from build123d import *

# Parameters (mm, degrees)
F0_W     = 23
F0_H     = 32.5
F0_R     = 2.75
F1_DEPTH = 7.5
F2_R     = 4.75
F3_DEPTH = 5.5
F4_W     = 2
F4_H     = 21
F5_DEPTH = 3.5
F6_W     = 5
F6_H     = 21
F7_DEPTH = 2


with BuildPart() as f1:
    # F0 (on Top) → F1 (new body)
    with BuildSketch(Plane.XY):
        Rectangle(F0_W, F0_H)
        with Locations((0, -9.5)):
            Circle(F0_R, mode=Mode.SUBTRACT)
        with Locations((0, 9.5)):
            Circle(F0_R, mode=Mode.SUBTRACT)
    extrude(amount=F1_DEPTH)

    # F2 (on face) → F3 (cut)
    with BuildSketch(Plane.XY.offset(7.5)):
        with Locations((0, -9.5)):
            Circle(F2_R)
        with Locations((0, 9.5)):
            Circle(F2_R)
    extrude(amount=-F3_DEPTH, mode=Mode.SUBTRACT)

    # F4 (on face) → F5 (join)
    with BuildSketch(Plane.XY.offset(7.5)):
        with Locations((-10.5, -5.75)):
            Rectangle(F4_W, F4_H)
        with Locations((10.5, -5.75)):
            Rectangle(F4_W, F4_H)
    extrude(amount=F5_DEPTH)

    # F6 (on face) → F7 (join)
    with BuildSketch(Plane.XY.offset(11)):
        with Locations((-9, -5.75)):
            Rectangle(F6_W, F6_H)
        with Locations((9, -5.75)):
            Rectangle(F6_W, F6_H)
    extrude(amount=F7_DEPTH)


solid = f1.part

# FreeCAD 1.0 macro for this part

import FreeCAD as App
import Part
import Sketcher

V = App.Vector
Q = App.Units.Quantity


def add_polygon(sketch, points):
    """Adds a closed chain of lines whose ends are joined by coincident constraints."""
    first, n = sketch.GeometryCount, len(points)
    for a, b in zip(points, points[1:] + points[:1]):
        sketch.addGeometry(Part.LineSegment(App.Vector(*a, 0), App.Vector(*b, 0)), False)
    for i in range(n):
        sketch.addConstraint(Sketcher.Constraint("Coincident", first + i, 2, first + (i + 1) % n, 1))

doc = App.newDocument("Part")
body = doc.addObject("PartDesign::Body", "Body")

sketch1 = doc.addObject("Sketcher::SketchObject", "Sketch")
body.addObject(sketch1)
sketch1.AttachmentSupport = (doc.XY_Plane, [""])
sketch1.MapMode = "FlatFace"
add_polygon(sketch1, [(-11.5, 16.2), (-11.5, -16.2), (11.5, -16.2), (11.5, 16.2)])
sketch1.addGeometry(Part.Circle(V(0, -9.5, 0), V(0, 0, 1), 2.8), False)
sketch1.addGeometry(Part.Circle(V(0, 9.5, 0), V(0, 0, 1), 2.8), False)
sketch1.addConstraint(Sketcher.Constraint("Vertical", 0))
sketch1.addConstraint(Sketcher.Constraint("Horizontal", 1))
sketch1.addConstraint(Sketcher.Constraint("Vertical", 2))
sketch1.addConstraint(Sketcher.Constraint("Horizontal", 3))
sketch1.addConstraint(Sketcher.Constraint("Equal", 4, 5))
sketch1.addConstraint(Sketcher.Constraint("Symmetric", 4, 3, 5, 3, -1, 1))
sketch1.addConstraint(Sketcher.Constraint("Symmetric", 0, 2, 2, 2, -1, 1))
sketch1.addConstraint(Sketcher.Constraint("PointOnObject", 4, 3, -2))
sketch1.addConstraint(Sketcher.Constraint("Diameter", 4, Q("5.5 mm")))
sketch1.addConstraint(Sketcher.Constraint("DistanceX", 1, 1, 1, 2, Q("23 mm")))
sketch1.addConstraint(Sketcher.Constraint("DistanceY", 0, 2, 0, 1, Q("32.5 mm")))
sketch1.addConstraint(Sketcher.Constraint("DistanceY", 4, 3, 5, 3, Q("19 mm")))
pad1 = doc.addObject("PartDesign::Pad", "Pad")
body.addObject(pad1)
pad1.Profile = sketch1
pad1.Length = 7.5

sketch2 = doc.addObject("Sketcher::SketchObject", "Sketch001")
body.addObject(sketch2)
sketch2.AttachmentSupport = (doc.XY_Plane, [""])
sketch2.MapMode = "FlatFace"
sketch2.AttachmentOffset = App.Placement(V(0, 0, 7.5), App.Rotation())
sketch2.addGeometry(Part.Circle(V(0, -9.5, 0), V(0, 0, 1), 4.8), False)
sketch2.addGeometry(Part.Circle(V(0, 9.5, 0), V(0, 0, 1), 4.8), False)
sketch2.addConstraint(Sketcher.Constraint("Equal", 0, 1))
sketch2.addConstraint(Sketcher.Constraint("Symmetric", 0, 3, 1, 3, -1, 1))
sketch2.addConstraint(Sketcher.Constraint("PointOnObject", 0, 3, -2))
sketch2.addConstraint(Sketcher.Constraint("Diameter", 0, Q("9.5 mm")))
sketch2.addConstraint(Sketcher.Constraint("DistanceY", 0, 3, 1, 3, Q("19 mm")))
pocket1 = doc.addObject("PartDesign::Pocket", "Pocket")
body.addObject(pocket1)
pocket1.Profile = sketch2
pocket1.Length = 5.5

sketch3 = doc.addObject("Sketcher::SketchObject", "Sketch002")
body.addObject(sketch3)
sketch3.AttachmentSupport = (doc.XY_Plane, [""])
sketch3.MapMode = "FlatFace"
sketch3.AttachmentOffset = App.Placement(V(0, 0, 7.5), App.Rotation())
add_polygon(sketch3, [(-11.5, 4.8), (-11.5, -16.2), (-9.5, -16.2), (-9.5, 4.8)])
add_polygon(sketch3, [(9.5, 4.8), (9.5, -16.2), (11.5, -16.2), (11.5, 4.8)])
sketch3.addConstraint(Sketcher.Constraint("Vertical", 0))
sketch3.addConstraint(Sketcher.Constraint("Horizontal", 1))
sketch3.addConstraint(Sketcher.Constraint("Vertical", 2))
sketch3.addConstraint(Sketcher.Constraint("Horizontal", 3))
sketch3.addConstraint(Sketcher.Constraint("Vertical", 4))
sketch3.addConstraint(Sketcher.Constraint("Horizontal", 5))
sketch3.addConstraint(Sketcher.Constraint("Vertical", 6))
sketch3.addConstraint(Sketcher.Constraint("Horizontal", 7))
sketch3.addConstraint(Sketcher.Constraint("Symmetric", 1, 2, 4, 2, -2))
sketch3.addConstraint(Sketcher.Constraint("Symmetric", 3, 2, 6, 2, -2))
sketch3.addConstraint(Sketcher.Constraint("DistanceX", 1, 1, 1, 2, Q("2 mm")))
sketch3.addConstraint(Sketcher.Constraint("DistanceY", 0, 2, 0, 1, Q("21 mm")))
sketch3.addConstraint(Sketcher.Constraint("DistanceX", 1, 2, 4, 2, Q("19 mm")))
sketch3.addConstraint(Sketcher.Constraint("DistanceY", 0, 2, -1, 1, Q("16.25 mm")))
pad2 = doc.addObject("PartDesign::Pad", "Pad001")
body.addObject(pad2)
pad2.Profile = sketch3
pad2.Length = 3.5

sketch4 = doc.addObject("Sketcher::SketchObject", "Sketch003")
body.addObject(sketch4)
sketch4.AttachmentSupport = (doc.XY_Plane, [""])
sketch4.MapMode = "FlatFace"
sketch4.AttachmentOffset = App.Placement(V(0, 0, 11), App.Rotation())
add_polygon(sketch4, [(-12, 5), (-12, -16), (-6, -16), (-6, 5)])
add_polygon(sketch4, [(6, 5), (6, -16), (12, -16), (12, 5)])
sketch4.addConstraint(Sketcher.Constraint("Vertical", 0))
sketch4.addConstraint(Sketcher.Constraint("Horizontal", 1))
sketch4.addConstraint(Sketcher.Constraint("Vertical", 2))
sketch4.addConstraint(Sketcher.Constraint("Horizontal", 3))
sketch4.addConstraint(Sketcher.Constraint("Vertical", 4))
sketch4.addConstraint(Sketcher.Constraint("Horizontal", 5))
sketch4.addConstraint(Sketcher.Constraint("Vertical", 6))
sketch4.addConstraint(Sketcher.Constraint("Horizontal", 7))
sketch4.addConstraint(Sketcher.Constraint("Symmetric", 1, 2, 4, 2, -2))
sketch4.addConstraint(Sketcher.Constraint("Symmetric", 3, 2, 6, 2, -2))
sketch4.addConstraint(Sketcher.Constraint("DistanceX", 1, 1, 1, 2, Q("5 mm")))
sketch4.addConstraint(Sketcher.Constraint("DistanceY", 0, 2, 0, 1, Q("21 mm")))
sketch4.addConstraint(Sketcher.Constraint("DistanceX", 1, 2, 4, 2, Q("13 mm")))
sketch4.addConstraint(Sketcher.Constraint("DistanceY", 0, 2, -1, 1, Q("16.25 mm")))
pad3 = doc.addObject("PartDesign::Pad", "Pad002")
body.addObject(pad3)
pad3.Profile = sketch4
pad3.Length = 2

doc.recompute()
